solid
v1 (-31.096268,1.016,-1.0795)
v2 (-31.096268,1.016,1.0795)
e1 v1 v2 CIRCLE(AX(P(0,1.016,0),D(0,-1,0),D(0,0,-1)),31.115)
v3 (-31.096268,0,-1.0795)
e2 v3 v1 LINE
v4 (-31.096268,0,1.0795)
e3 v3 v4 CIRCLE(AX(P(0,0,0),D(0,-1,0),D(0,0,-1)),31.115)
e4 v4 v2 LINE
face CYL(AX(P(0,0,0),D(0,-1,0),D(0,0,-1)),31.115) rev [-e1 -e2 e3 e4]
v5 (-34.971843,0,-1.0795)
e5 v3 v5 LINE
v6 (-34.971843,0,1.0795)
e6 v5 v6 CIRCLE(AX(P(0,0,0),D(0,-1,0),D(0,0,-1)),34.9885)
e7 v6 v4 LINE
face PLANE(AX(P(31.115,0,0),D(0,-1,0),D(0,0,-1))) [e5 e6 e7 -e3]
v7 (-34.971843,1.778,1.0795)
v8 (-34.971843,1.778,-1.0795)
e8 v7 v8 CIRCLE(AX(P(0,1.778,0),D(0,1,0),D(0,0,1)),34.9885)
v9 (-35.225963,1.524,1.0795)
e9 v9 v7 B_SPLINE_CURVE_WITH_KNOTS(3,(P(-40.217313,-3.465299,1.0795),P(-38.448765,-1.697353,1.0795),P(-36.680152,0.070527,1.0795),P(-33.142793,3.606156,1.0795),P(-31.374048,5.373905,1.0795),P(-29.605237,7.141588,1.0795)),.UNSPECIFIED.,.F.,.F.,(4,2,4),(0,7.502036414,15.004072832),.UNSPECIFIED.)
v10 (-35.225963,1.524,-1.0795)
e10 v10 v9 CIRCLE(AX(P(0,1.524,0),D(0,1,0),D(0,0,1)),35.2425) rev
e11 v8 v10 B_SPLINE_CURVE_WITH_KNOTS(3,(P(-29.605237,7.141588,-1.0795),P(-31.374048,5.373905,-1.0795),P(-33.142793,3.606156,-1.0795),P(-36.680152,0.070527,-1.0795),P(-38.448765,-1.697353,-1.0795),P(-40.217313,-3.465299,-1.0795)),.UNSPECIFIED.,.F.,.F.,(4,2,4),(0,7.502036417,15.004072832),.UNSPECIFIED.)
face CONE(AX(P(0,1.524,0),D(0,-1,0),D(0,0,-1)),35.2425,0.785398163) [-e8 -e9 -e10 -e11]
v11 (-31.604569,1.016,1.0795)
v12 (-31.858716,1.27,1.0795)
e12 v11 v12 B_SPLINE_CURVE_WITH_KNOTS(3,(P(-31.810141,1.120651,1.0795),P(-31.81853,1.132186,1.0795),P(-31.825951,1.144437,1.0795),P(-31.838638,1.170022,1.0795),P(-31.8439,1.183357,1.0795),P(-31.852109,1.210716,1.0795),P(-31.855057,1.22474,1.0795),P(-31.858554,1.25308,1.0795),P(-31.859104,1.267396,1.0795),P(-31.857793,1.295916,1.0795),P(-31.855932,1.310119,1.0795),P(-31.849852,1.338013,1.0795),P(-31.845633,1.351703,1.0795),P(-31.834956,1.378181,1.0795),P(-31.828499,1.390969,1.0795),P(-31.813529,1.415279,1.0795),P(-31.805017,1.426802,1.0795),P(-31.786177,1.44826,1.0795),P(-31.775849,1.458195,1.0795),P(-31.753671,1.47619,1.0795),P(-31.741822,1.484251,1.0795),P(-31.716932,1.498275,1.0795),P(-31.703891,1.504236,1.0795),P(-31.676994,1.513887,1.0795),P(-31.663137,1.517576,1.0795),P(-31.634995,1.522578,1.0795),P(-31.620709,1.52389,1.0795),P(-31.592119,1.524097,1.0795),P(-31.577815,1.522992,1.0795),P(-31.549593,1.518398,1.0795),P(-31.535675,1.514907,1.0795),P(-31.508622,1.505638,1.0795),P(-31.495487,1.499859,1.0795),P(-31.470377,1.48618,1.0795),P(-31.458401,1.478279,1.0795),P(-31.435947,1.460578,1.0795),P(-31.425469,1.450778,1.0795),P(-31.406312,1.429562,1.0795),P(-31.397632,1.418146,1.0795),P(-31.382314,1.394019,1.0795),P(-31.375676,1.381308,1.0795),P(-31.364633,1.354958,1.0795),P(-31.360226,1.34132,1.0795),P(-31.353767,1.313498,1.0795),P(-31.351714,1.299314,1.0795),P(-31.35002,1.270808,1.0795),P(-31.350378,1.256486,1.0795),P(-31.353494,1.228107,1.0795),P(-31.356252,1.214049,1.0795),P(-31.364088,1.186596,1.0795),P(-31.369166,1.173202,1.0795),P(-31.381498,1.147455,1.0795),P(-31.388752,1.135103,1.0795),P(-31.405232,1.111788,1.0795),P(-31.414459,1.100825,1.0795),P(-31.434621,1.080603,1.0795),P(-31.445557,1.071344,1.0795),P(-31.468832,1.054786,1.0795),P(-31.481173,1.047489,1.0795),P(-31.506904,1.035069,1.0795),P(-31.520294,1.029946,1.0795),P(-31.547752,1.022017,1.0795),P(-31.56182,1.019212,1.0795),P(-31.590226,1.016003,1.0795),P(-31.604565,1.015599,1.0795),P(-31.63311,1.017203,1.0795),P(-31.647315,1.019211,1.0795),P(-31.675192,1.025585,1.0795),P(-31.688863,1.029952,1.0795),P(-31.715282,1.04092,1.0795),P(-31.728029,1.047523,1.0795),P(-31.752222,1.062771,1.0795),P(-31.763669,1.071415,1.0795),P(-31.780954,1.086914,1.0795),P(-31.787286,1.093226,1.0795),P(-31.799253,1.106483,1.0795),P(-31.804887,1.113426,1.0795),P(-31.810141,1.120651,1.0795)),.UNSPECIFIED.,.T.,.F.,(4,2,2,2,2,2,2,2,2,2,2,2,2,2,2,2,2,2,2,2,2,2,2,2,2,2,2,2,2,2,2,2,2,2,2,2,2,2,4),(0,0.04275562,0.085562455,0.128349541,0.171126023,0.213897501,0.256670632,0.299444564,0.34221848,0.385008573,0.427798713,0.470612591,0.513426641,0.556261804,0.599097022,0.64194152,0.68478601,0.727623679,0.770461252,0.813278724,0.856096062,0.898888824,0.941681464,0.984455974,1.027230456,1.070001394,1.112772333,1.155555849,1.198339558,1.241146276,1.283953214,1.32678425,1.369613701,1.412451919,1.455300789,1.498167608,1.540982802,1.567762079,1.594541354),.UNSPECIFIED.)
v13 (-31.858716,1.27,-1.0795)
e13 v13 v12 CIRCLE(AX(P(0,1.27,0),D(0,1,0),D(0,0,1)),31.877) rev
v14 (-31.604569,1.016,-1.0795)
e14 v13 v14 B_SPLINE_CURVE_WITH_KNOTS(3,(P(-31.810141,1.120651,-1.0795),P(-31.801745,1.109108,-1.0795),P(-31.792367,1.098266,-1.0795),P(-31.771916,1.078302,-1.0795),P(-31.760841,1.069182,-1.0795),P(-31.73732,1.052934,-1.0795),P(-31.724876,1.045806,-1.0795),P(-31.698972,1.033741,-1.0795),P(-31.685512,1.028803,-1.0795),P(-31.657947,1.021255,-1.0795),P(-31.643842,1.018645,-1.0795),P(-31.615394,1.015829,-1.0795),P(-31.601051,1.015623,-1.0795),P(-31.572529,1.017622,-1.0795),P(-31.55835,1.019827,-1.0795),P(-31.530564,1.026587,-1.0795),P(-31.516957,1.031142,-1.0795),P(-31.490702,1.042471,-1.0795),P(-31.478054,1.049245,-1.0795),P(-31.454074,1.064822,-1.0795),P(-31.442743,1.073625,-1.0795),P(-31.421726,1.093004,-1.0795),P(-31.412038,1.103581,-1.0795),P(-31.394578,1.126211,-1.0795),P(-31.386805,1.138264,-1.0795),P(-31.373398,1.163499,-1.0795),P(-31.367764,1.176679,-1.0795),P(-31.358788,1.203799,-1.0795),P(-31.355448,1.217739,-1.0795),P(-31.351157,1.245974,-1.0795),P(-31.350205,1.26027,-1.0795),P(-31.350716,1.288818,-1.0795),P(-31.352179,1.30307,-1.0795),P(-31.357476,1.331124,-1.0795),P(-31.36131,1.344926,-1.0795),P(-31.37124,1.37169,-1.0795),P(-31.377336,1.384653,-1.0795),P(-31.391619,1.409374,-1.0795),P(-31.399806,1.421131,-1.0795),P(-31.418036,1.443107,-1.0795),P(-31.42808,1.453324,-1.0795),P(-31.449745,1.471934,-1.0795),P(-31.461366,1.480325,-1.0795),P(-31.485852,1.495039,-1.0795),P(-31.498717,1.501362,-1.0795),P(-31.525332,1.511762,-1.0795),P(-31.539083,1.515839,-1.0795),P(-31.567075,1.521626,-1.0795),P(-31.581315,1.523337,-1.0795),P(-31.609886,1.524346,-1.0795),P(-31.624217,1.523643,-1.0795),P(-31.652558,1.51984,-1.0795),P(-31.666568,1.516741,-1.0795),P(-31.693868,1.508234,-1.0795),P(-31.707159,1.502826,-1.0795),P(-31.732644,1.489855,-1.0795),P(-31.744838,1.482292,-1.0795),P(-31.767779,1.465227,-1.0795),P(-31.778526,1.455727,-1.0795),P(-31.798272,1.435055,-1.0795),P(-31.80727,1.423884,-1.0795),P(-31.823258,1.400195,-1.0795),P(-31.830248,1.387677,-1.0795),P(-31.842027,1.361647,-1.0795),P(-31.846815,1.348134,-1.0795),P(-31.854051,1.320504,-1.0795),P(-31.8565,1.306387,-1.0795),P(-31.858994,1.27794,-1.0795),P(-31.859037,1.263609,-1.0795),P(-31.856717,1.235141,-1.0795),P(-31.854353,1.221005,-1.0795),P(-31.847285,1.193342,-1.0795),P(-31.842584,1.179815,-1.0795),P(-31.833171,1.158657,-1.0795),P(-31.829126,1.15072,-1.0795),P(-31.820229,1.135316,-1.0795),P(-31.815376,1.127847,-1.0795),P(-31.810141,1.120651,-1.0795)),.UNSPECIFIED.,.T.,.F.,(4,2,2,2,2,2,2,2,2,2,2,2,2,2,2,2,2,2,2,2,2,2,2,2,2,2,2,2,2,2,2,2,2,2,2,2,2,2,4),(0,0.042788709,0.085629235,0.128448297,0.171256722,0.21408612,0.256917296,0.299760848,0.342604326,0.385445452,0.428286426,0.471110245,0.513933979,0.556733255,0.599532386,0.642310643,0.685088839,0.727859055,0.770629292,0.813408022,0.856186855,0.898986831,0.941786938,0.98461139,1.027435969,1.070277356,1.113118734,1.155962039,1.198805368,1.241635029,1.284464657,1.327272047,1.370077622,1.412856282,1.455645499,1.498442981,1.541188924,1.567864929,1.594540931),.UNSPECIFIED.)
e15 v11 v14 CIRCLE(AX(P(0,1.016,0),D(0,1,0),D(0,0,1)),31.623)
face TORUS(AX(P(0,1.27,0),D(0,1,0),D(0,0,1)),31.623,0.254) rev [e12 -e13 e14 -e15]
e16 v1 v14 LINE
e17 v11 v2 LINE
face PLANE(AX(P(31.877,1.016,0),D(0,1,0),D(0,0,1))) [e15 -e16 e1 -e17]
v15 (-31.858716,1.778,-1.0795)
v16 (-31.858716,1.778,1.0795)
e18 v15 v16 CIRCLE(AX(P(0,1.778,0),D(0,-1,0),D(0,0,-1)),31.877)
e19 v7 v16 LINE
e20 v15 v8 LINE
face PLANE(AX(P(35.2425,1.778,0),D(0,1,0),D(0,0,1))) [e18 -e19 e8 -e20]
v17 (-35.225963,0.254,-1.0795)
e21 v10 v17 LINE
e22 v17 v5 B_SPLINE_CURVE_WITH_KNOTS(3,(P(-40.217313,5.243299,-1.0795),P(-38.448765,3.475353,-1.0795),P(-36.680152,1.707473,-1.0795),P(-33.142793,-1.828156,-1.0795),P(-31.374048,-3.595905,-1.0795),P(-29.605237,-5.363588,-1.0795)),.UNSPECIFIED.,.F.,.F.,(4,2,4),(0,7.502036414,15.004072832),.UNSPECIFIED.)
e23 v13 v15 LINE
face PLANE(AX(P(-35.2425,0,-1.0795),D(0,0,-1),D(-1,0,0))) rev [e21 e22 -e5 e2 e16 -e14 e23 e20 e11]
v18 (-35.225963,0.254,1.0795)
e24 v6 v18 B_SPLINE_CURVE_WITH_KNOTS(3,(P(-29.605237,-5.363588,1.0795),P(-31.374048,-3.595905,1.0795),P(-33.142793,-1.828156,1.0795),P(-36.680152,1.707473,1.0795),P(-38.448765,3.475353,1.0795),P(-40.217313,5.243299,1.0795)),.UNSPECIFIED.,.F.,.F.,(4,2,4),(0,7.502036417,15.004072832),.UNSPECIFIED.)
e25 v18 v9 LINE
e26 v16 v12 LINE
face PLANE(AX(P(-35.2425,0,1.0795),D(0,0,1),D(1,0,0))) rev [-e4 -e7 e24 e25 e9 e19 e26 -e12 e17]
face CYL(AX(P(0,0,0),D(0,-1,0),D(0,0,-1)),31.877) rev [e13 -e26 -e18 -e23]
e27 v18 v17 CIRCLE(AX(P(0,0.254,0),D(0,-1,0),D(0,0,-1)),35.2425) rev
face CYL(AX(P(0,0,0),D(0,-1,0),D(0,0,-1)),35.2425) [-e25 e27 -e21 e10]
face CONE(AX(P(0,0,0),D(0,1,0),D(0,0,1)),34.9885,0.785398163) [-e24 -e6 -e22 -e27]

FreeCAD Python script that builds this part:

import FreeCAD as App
import Part
import Sketcher
Q = App.Units.Quantity


def edges_at(feature, points):
    """Names of the edges that pass closest to the given points."""
    edges = feature.Shape.Edges
    near = lambda p: min(range(len(edges)), key=lambda i: edges[i].distToShape(Part.Vertex(*p))[0])
    return sorted({f"Edge{near(p) + 1}" for p in points})

doc = App.newDocument("Part")
body = doc.addObject("PartDesign::Body", "Body")

# Sketch on XY plane
sketch1 = doc.addObject("Sketcher::SketchObject", "Sketch")
body.addObject(sketch1)
sketch1.AttachmentSupport = (doc.XY_Plane, [""])
sketch1.MapMode = "FlatFace"
sketch1.addGeometry([
    Part.LineSegment(App.Vector(35.2, 0, 0), App.Vector(35.2, 1.8, 0)),  # 0
    Part.LineSegment(App.Vector(35.2, 1.8, 0), App.Vector(31.9, 1.8, 0)),  # 1
    Part.LineSegment(App.Vector(31.9, 1.8, 0), App.Vector(31.9, 1, 0)),  # 2
    Part.LineSegment(App.Vector(31.9, 1, 0), App.Vector(31.1, 1, 0)),  # 3
    Part.LineSegment(App.Vector(31.1, 1, 0), App.Vector(31.1, 0, 0)),  # 4
    Part.LineSegment(App.Vector(31.1, 0, 0), App.Vector(35.2, 0, 0)),  # 5
], False)
sketch1.addConstraint([
    Sketcher.Constraint("Coincident", 0, 2, 1, 1),
    Sketcher.Constraint("Coincident", 1, 2, 2, 1),
    Sketcher.Constraint("Coincident", 2, 2, 3, 1),
    Sketcher.Constraint("Coincident", 3, 2, 4, 1),
    Sketcher.Constraint("Coincident", 4, 2, 5, 1),
    Sketcher.Constraint("Coincident", 5, 2, 0, 1),
    Sketcher.Constraint("Vertical", 0),
    Sketcher.Constraint("Horizontal", 1),
    Sketcher.Constraint("Vertical", 2),
    Sketcher.Constraint("Horizontal", 3),
    Sketcher.Constraint("Vertical", 4),
    Sketcher.Constraint("Horizontal", 5),
    Sketcher.Constraint("PointOnObject", 4, 2, -1),
    Sketcher.Constraint("Equal", 3, 2),
    Sketcher.Constraint("DistanceX", 3, 2, 3, 1, Q("0.03 in")),
    Sketcher.Constraint("DistanceY", 0, 1, 0, 2, Q("0.07 in")),
    Sketcher.Constraint("DistanceX", 1, 2, 1, 1, Q("0.1325 in")),
    Sketcher.Constraint("DistanceX", -1, 1, 1, 2, Q("1.255 in")),
])
revolution = doc.addObject("PartDesign::Revolution", "Revolution")
body.addObject(revolution)
revolution.Profile = sketch1
revolution.ReferenceAxis = (sketch1, ["V_Axis"])
revolution.Angle = 360
doc.recompute()

fillet = doc.addObject("PartDesign::Fillet", "Fillet")
body.addObject(fillet)
fillet.Base = (revolution, edges_at(revolution, [(0, 1.016, 31.877)]))
fillet.Radius = Q("0.01 in")
doc.recompute()

chamfer = doc.addObject("PartDesign::Chamfer", "Chamfer")
body.addObject(chamfer)
chamfer.Base = (fillet, edges_at(fillet, [(0, 1.778, 35.242), (0, 0, 35.242)]))
chamfer.Size = Q("0.01 in")

# Sketch on XZ plane
sketch2 = doc.addObject("Sketcher::SketchObject", "Sketch001")
body.addObject(sketch2)
sketch2.AttachmentSupport = (doc.XZ_Plane, [""])
sketch2.MapMode = "FlatFace"
sketch2.AttachmentOffset = App.Placement(App.Vector(0, 0, -0.07 * 25.4), App.Rotation())
sketch2.addGeometry([
    Part.LineSegment(App.Vector(-35.2, -1.1, 0), App.Vector(-35.2, 1.1, 0)),
    Part.LineSegment(App.Vector(-35.2, 1.1, 0), App.Vector(-31.1, 1.1, 0)),
    Part.LineSegment(App.Vector(-31.1, 1.1, 0), App.Vector(-31.1, -1.1, 0)),
    Part.LineSegment(App.Vector(-31.1, -1.1, 0), App.Vector(-35.2, -1.1, 0)),
], False)
sketch2.addConstraint([
    Sketcher.Constraint("Coincident", 0, 2, 1, 1),
    Sketcher.Constraint("Coincident", 1, 2, 2, 1),
    Sketcher.Constraint("Coincident", 2, 2, 3, 1),
    Sketcher.Constraint("Coincident", 3, 2, 0, 1),
    Sketcher.Constraint("Vertical", 0),
    Sketcher.Constraint("Horizontal", 1),
    Sketcher.Constraint("Vertical", 2),
    Sketcher.Constraint("Horizontal", 3),
    Sketcher.Constraint("DistanceY", 0, 1, 0, 2, Q("0.085 in")),
    Sketcher.Constraint("DistanceX", 0, 2, -1, 1, Q("1.3875 in")),
    Sketcher.Constraint("DistanceY", -1, 1, 0, 2, Q("0.0425 in")),
    Sketcher.Constraint("DistanceX", 1, 1, 1, 2, 4.146232),
])
pocket1 = doc.addObject("PartDesign::Pocket", "Pocket")
body.addObject(pocket1)
pocket1.Profile = sketch2
pocket1.Type = "ThroughAll"
pocket1.Reversed = True

doc.recompute()
